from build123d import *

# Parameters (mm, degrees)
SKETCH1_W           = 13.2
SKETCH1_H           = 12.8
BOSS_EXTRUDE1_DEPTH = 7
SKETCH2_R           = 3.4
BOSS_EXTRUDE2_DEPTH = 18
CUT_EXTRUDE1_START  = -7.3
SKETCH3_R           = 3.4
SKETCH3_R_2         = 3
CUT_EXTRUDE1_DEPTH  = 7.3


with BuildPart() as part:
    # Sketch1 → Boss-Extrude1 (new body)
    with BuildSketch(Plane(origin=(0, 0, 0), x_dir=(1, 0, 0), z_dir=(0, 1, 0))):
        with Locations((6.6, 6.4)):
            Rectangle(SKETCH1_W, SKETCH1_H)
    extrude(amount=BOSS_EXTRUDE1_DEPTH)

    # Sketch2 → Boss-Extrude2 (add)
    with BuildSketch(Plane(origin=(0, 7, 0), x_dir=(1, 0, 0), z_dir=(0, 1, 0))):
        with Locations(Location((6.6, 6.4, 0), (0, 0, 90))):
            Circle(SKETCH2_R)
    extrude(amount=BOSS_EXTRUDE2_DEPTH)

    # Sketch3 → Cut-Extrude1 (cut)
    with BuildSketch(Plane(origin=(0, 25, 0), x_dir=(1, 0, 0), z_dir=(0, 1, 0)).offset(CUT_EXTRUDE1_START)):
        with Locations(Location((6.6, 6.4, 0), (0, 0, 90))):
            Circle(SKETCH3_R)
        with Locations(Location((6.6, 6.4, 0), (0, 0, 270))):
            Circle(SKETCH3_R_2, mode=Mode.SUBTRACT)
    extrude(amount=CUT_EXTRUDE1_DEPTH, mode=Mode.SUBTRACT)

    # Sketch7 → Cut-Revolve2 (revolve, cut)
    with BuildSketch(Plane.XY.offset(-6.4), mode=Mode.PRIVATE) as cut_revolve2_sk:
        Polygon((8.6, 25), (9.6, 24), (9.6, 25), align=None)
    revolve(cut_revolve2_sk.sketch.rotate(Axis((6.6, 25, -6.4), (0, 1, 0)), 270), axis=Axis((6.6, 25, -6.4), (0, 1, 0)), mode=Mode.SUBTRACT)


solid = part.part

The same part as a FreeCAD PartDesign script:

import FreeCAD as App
import Part
import Sketcher
from FreeCAD import Vector


def add_polygon(sketch, points):
    """Adds a closed chain of lines whose ends are joined by coincident constraints."""
    first, n = sketch.GeometryCount, len(points)
    for a, b in zip(points, points[1:] + points[:1]):
        sketch.addGeometry(Part.LineSegment(App.Vector(*a, 0), App.Vector(*b, 0)), False)
    for i in range(n):
        sketch.addConstraint(Sketcher.Constraint("Coincident", first + i, 2, first + (i + 1) % n, 1))

doc = App.newDocument("Part")
params = doc.addObject("Spreadsheet::Sheet", "Params")
for row, (alias, value) in enumerate([
    ("sketch1_width", "13.2 mm"),
    ("sketch1_height", "12.8 mm"),
    ("pad1_length", "7 mm"),
    ("sketch2_diameter", "6.8 mm"),
    ("pad2_length", "18 mm"),
    ("sketch3_diameter", "6 mm"),
    ("sketch3_diameter2", "6.8 mm"),
    ("pocket1_length", "7.3 mm"),
    ("sketch4_width", "1 mm"),
    ("groove_angle", "360 deg"),
], start=1):
    params.set(f"A{row}", alias)
    params.set(f"B{row}", "=" + value)
    params.setAlias(f"B{row}", alias)

body = doc.addObject("PartDesign::Body", "Body")

# Sketch on XZ plane
sketch1 = body.newObject("Sketcher::SketchObject", "Sketch")
sketch1.AttachmentSupport = (doc.getObject("XZ_Plane"), [""])
sketch1.MapMode = "FlatFace"
add_polygon(sketch1, [(0, -13), (0, 0), (13, 0), (13, -13)])  # lines 0-3
sketch1.addConstraint([
    Sketcher.Constraint("Vertical", 0),
    Sketcher.Constraint("Horizontal", 1),
    Sketcher.Constraint("Vertical", 2),
    Sketcher.Constraint("Horizontal", 3),
    Sketcher.Constraint("Coincident", 0, 2, -1, 1),
    Sketcher.Constraint("DistanceX", 1, 1, 1, 2, 13.2),
    Sketcher.Constraint("DistanceY", 0, 1, 0, 2, 12.8),
])
sketch1.setExpression("Constraints[9]", "Params.sketch1_width")
sketch1.setExpression("Constraints[10]", "Params.sketch1_height")
pad1 = body.newObject("PartDesign::Pad", "Pad")
pad1.Profile = sketch1
pad1.setExpression("Length", "Params.pad1_length")
pad1.Reversed = True

# Sketch on XZ plane
sketch2 = body.newObject("Sketcher::SketchObject", "Sketch001")
sketch2.AttachmentSupport = (doc.getObject("XZ_Plane"), [""])
sketch2.MapMode = "FlatFace"
sketch2.AttachmentOffset = App.Placement(Vector(0, 0, -7), App.Rotation())
sketch2.addGeometry(Part.Circle(Vector(6.6, -6.4, 0), Vector(0, 0, 1), 3.4), False)
sketch2.addConstraint([
    Sketcher.Constraint("Diameter", 0, 6.8),
    Sketcher.Constraint("DistanceX", -1, 1, 0, 3, 6.6),
    Sketcher.Constraint("DistanceY", 0, 3, -1, 1, 6.4),
])
sketch2.setExpression("Constraints[0]", "Params.sketch2_diameter")
pad2 = body.newObject("PartDesign::Pad", "Pad001")
pad2.Profile = sketch2
pad2.setExpression("Length", "Params.pad2_length")
pad2.Reversed = True

# Sketch on XZ plane
sketch3 = body.newObject("Sketcher::SketchObject", "Sketch002")
sketch3.AttachmentSupport = (doc.getObject("XZ_Plane"), [""])
sketch3.MapMode = "FlatFace"
sketch3.AttachmentOffset = App.Placement(Vector(0, 0, -17.7), App.Rotation())
sketch3.addGeometry([
    Part.Circle(Vector(6.6, -6.4, 0), Vector(0, 0, 1), 3.4),
    Part.Circle(Vector(6.6, -6.4, 0), Vector(0, 0, 1), 3),
], False)
sketch3.addConstraint([
    Sketcher.Constraint("Coincident", 1, 3, 0, 3),
    Sketcher.Constraint("Diameter", 1, 6.0),
    Sketcher.Constraint("Diameter", 0, 6.8),
    Sketcher.Constraint("DistanceX", -1, 1, 0, 3, 6.6),
    Sketcher.Constraint("DistanceY", 0, 3, -1, 1, 6.4),
])
sketch3.setExpression("Constraints[1]", "Params.sketch3_diameter")
sketch3.setExpression("Constraints[2]", "Params.sketch3_diameter2")
pocket1 = body.newObject("PartDesign::Pocket", "Pocket")
pocket1.Profile = sketch3
pocket1.setExpression("Length", "Params.pocket1_length")

# Sketch on XY plane
sketch4 = body.newObject("Sketcher::SketchObject", "Sketch003")
sketch4.AttachmentSupport = (doc.getObject("XY_Plane"), [""])
sketch4.MapMode = "FlatFace"
sketch4.AttachmentOffset = App.Placement(Vector(0, 0, -6.4), App.Rotation())
add_polygon(sketch4, [(8.6, 25), (9.6, 24), (9.6, 25)])  # lines 0-2
sketch4.addGeometry(Part.LineSegment(Vector(6.6, 24, 0), Vector(6.6, 25, 0)), True)  # axis
sketch4.addConstraint([
    Sketcher.Constraint("Vertical", 1),
    Sketcher.Constraint("Horizontal", 2),
    Sketcher.Constraint("Vertical", 3),
    Sketcher.Constraint("Horizontal", 0, 2, 3, 1),
    Sketcher.Constraint("Horizontal", 2, 2, 3, 2),
    Sketcher.Constraint("Equal", 2, 1),
    Sketcher.Constraint("DistanceX", 2, 2, 2, 1, 1.0),
    Sketcher.Constraint("DistanceY", -1, 1, 0, 2, 24.0),
    Sketcher.Constraint("DistanceX", 3, 1, 2, 2, 2.0),
    Sketcher.Constraint("DistanceX", -1, 1, 0, 2, 9.6),
])
sketch4.setExpression("Constraints[9]", "Params.sketch4_width")
groove = body.newObject("PartDesign::Groove", "Groove")
groove.Profile = sketch4
groove.ReferenceAxis = (sketch4, ["Axis0"])
groove.setExpression("Angle", "Params.groove_angle")

doc.recompute()
